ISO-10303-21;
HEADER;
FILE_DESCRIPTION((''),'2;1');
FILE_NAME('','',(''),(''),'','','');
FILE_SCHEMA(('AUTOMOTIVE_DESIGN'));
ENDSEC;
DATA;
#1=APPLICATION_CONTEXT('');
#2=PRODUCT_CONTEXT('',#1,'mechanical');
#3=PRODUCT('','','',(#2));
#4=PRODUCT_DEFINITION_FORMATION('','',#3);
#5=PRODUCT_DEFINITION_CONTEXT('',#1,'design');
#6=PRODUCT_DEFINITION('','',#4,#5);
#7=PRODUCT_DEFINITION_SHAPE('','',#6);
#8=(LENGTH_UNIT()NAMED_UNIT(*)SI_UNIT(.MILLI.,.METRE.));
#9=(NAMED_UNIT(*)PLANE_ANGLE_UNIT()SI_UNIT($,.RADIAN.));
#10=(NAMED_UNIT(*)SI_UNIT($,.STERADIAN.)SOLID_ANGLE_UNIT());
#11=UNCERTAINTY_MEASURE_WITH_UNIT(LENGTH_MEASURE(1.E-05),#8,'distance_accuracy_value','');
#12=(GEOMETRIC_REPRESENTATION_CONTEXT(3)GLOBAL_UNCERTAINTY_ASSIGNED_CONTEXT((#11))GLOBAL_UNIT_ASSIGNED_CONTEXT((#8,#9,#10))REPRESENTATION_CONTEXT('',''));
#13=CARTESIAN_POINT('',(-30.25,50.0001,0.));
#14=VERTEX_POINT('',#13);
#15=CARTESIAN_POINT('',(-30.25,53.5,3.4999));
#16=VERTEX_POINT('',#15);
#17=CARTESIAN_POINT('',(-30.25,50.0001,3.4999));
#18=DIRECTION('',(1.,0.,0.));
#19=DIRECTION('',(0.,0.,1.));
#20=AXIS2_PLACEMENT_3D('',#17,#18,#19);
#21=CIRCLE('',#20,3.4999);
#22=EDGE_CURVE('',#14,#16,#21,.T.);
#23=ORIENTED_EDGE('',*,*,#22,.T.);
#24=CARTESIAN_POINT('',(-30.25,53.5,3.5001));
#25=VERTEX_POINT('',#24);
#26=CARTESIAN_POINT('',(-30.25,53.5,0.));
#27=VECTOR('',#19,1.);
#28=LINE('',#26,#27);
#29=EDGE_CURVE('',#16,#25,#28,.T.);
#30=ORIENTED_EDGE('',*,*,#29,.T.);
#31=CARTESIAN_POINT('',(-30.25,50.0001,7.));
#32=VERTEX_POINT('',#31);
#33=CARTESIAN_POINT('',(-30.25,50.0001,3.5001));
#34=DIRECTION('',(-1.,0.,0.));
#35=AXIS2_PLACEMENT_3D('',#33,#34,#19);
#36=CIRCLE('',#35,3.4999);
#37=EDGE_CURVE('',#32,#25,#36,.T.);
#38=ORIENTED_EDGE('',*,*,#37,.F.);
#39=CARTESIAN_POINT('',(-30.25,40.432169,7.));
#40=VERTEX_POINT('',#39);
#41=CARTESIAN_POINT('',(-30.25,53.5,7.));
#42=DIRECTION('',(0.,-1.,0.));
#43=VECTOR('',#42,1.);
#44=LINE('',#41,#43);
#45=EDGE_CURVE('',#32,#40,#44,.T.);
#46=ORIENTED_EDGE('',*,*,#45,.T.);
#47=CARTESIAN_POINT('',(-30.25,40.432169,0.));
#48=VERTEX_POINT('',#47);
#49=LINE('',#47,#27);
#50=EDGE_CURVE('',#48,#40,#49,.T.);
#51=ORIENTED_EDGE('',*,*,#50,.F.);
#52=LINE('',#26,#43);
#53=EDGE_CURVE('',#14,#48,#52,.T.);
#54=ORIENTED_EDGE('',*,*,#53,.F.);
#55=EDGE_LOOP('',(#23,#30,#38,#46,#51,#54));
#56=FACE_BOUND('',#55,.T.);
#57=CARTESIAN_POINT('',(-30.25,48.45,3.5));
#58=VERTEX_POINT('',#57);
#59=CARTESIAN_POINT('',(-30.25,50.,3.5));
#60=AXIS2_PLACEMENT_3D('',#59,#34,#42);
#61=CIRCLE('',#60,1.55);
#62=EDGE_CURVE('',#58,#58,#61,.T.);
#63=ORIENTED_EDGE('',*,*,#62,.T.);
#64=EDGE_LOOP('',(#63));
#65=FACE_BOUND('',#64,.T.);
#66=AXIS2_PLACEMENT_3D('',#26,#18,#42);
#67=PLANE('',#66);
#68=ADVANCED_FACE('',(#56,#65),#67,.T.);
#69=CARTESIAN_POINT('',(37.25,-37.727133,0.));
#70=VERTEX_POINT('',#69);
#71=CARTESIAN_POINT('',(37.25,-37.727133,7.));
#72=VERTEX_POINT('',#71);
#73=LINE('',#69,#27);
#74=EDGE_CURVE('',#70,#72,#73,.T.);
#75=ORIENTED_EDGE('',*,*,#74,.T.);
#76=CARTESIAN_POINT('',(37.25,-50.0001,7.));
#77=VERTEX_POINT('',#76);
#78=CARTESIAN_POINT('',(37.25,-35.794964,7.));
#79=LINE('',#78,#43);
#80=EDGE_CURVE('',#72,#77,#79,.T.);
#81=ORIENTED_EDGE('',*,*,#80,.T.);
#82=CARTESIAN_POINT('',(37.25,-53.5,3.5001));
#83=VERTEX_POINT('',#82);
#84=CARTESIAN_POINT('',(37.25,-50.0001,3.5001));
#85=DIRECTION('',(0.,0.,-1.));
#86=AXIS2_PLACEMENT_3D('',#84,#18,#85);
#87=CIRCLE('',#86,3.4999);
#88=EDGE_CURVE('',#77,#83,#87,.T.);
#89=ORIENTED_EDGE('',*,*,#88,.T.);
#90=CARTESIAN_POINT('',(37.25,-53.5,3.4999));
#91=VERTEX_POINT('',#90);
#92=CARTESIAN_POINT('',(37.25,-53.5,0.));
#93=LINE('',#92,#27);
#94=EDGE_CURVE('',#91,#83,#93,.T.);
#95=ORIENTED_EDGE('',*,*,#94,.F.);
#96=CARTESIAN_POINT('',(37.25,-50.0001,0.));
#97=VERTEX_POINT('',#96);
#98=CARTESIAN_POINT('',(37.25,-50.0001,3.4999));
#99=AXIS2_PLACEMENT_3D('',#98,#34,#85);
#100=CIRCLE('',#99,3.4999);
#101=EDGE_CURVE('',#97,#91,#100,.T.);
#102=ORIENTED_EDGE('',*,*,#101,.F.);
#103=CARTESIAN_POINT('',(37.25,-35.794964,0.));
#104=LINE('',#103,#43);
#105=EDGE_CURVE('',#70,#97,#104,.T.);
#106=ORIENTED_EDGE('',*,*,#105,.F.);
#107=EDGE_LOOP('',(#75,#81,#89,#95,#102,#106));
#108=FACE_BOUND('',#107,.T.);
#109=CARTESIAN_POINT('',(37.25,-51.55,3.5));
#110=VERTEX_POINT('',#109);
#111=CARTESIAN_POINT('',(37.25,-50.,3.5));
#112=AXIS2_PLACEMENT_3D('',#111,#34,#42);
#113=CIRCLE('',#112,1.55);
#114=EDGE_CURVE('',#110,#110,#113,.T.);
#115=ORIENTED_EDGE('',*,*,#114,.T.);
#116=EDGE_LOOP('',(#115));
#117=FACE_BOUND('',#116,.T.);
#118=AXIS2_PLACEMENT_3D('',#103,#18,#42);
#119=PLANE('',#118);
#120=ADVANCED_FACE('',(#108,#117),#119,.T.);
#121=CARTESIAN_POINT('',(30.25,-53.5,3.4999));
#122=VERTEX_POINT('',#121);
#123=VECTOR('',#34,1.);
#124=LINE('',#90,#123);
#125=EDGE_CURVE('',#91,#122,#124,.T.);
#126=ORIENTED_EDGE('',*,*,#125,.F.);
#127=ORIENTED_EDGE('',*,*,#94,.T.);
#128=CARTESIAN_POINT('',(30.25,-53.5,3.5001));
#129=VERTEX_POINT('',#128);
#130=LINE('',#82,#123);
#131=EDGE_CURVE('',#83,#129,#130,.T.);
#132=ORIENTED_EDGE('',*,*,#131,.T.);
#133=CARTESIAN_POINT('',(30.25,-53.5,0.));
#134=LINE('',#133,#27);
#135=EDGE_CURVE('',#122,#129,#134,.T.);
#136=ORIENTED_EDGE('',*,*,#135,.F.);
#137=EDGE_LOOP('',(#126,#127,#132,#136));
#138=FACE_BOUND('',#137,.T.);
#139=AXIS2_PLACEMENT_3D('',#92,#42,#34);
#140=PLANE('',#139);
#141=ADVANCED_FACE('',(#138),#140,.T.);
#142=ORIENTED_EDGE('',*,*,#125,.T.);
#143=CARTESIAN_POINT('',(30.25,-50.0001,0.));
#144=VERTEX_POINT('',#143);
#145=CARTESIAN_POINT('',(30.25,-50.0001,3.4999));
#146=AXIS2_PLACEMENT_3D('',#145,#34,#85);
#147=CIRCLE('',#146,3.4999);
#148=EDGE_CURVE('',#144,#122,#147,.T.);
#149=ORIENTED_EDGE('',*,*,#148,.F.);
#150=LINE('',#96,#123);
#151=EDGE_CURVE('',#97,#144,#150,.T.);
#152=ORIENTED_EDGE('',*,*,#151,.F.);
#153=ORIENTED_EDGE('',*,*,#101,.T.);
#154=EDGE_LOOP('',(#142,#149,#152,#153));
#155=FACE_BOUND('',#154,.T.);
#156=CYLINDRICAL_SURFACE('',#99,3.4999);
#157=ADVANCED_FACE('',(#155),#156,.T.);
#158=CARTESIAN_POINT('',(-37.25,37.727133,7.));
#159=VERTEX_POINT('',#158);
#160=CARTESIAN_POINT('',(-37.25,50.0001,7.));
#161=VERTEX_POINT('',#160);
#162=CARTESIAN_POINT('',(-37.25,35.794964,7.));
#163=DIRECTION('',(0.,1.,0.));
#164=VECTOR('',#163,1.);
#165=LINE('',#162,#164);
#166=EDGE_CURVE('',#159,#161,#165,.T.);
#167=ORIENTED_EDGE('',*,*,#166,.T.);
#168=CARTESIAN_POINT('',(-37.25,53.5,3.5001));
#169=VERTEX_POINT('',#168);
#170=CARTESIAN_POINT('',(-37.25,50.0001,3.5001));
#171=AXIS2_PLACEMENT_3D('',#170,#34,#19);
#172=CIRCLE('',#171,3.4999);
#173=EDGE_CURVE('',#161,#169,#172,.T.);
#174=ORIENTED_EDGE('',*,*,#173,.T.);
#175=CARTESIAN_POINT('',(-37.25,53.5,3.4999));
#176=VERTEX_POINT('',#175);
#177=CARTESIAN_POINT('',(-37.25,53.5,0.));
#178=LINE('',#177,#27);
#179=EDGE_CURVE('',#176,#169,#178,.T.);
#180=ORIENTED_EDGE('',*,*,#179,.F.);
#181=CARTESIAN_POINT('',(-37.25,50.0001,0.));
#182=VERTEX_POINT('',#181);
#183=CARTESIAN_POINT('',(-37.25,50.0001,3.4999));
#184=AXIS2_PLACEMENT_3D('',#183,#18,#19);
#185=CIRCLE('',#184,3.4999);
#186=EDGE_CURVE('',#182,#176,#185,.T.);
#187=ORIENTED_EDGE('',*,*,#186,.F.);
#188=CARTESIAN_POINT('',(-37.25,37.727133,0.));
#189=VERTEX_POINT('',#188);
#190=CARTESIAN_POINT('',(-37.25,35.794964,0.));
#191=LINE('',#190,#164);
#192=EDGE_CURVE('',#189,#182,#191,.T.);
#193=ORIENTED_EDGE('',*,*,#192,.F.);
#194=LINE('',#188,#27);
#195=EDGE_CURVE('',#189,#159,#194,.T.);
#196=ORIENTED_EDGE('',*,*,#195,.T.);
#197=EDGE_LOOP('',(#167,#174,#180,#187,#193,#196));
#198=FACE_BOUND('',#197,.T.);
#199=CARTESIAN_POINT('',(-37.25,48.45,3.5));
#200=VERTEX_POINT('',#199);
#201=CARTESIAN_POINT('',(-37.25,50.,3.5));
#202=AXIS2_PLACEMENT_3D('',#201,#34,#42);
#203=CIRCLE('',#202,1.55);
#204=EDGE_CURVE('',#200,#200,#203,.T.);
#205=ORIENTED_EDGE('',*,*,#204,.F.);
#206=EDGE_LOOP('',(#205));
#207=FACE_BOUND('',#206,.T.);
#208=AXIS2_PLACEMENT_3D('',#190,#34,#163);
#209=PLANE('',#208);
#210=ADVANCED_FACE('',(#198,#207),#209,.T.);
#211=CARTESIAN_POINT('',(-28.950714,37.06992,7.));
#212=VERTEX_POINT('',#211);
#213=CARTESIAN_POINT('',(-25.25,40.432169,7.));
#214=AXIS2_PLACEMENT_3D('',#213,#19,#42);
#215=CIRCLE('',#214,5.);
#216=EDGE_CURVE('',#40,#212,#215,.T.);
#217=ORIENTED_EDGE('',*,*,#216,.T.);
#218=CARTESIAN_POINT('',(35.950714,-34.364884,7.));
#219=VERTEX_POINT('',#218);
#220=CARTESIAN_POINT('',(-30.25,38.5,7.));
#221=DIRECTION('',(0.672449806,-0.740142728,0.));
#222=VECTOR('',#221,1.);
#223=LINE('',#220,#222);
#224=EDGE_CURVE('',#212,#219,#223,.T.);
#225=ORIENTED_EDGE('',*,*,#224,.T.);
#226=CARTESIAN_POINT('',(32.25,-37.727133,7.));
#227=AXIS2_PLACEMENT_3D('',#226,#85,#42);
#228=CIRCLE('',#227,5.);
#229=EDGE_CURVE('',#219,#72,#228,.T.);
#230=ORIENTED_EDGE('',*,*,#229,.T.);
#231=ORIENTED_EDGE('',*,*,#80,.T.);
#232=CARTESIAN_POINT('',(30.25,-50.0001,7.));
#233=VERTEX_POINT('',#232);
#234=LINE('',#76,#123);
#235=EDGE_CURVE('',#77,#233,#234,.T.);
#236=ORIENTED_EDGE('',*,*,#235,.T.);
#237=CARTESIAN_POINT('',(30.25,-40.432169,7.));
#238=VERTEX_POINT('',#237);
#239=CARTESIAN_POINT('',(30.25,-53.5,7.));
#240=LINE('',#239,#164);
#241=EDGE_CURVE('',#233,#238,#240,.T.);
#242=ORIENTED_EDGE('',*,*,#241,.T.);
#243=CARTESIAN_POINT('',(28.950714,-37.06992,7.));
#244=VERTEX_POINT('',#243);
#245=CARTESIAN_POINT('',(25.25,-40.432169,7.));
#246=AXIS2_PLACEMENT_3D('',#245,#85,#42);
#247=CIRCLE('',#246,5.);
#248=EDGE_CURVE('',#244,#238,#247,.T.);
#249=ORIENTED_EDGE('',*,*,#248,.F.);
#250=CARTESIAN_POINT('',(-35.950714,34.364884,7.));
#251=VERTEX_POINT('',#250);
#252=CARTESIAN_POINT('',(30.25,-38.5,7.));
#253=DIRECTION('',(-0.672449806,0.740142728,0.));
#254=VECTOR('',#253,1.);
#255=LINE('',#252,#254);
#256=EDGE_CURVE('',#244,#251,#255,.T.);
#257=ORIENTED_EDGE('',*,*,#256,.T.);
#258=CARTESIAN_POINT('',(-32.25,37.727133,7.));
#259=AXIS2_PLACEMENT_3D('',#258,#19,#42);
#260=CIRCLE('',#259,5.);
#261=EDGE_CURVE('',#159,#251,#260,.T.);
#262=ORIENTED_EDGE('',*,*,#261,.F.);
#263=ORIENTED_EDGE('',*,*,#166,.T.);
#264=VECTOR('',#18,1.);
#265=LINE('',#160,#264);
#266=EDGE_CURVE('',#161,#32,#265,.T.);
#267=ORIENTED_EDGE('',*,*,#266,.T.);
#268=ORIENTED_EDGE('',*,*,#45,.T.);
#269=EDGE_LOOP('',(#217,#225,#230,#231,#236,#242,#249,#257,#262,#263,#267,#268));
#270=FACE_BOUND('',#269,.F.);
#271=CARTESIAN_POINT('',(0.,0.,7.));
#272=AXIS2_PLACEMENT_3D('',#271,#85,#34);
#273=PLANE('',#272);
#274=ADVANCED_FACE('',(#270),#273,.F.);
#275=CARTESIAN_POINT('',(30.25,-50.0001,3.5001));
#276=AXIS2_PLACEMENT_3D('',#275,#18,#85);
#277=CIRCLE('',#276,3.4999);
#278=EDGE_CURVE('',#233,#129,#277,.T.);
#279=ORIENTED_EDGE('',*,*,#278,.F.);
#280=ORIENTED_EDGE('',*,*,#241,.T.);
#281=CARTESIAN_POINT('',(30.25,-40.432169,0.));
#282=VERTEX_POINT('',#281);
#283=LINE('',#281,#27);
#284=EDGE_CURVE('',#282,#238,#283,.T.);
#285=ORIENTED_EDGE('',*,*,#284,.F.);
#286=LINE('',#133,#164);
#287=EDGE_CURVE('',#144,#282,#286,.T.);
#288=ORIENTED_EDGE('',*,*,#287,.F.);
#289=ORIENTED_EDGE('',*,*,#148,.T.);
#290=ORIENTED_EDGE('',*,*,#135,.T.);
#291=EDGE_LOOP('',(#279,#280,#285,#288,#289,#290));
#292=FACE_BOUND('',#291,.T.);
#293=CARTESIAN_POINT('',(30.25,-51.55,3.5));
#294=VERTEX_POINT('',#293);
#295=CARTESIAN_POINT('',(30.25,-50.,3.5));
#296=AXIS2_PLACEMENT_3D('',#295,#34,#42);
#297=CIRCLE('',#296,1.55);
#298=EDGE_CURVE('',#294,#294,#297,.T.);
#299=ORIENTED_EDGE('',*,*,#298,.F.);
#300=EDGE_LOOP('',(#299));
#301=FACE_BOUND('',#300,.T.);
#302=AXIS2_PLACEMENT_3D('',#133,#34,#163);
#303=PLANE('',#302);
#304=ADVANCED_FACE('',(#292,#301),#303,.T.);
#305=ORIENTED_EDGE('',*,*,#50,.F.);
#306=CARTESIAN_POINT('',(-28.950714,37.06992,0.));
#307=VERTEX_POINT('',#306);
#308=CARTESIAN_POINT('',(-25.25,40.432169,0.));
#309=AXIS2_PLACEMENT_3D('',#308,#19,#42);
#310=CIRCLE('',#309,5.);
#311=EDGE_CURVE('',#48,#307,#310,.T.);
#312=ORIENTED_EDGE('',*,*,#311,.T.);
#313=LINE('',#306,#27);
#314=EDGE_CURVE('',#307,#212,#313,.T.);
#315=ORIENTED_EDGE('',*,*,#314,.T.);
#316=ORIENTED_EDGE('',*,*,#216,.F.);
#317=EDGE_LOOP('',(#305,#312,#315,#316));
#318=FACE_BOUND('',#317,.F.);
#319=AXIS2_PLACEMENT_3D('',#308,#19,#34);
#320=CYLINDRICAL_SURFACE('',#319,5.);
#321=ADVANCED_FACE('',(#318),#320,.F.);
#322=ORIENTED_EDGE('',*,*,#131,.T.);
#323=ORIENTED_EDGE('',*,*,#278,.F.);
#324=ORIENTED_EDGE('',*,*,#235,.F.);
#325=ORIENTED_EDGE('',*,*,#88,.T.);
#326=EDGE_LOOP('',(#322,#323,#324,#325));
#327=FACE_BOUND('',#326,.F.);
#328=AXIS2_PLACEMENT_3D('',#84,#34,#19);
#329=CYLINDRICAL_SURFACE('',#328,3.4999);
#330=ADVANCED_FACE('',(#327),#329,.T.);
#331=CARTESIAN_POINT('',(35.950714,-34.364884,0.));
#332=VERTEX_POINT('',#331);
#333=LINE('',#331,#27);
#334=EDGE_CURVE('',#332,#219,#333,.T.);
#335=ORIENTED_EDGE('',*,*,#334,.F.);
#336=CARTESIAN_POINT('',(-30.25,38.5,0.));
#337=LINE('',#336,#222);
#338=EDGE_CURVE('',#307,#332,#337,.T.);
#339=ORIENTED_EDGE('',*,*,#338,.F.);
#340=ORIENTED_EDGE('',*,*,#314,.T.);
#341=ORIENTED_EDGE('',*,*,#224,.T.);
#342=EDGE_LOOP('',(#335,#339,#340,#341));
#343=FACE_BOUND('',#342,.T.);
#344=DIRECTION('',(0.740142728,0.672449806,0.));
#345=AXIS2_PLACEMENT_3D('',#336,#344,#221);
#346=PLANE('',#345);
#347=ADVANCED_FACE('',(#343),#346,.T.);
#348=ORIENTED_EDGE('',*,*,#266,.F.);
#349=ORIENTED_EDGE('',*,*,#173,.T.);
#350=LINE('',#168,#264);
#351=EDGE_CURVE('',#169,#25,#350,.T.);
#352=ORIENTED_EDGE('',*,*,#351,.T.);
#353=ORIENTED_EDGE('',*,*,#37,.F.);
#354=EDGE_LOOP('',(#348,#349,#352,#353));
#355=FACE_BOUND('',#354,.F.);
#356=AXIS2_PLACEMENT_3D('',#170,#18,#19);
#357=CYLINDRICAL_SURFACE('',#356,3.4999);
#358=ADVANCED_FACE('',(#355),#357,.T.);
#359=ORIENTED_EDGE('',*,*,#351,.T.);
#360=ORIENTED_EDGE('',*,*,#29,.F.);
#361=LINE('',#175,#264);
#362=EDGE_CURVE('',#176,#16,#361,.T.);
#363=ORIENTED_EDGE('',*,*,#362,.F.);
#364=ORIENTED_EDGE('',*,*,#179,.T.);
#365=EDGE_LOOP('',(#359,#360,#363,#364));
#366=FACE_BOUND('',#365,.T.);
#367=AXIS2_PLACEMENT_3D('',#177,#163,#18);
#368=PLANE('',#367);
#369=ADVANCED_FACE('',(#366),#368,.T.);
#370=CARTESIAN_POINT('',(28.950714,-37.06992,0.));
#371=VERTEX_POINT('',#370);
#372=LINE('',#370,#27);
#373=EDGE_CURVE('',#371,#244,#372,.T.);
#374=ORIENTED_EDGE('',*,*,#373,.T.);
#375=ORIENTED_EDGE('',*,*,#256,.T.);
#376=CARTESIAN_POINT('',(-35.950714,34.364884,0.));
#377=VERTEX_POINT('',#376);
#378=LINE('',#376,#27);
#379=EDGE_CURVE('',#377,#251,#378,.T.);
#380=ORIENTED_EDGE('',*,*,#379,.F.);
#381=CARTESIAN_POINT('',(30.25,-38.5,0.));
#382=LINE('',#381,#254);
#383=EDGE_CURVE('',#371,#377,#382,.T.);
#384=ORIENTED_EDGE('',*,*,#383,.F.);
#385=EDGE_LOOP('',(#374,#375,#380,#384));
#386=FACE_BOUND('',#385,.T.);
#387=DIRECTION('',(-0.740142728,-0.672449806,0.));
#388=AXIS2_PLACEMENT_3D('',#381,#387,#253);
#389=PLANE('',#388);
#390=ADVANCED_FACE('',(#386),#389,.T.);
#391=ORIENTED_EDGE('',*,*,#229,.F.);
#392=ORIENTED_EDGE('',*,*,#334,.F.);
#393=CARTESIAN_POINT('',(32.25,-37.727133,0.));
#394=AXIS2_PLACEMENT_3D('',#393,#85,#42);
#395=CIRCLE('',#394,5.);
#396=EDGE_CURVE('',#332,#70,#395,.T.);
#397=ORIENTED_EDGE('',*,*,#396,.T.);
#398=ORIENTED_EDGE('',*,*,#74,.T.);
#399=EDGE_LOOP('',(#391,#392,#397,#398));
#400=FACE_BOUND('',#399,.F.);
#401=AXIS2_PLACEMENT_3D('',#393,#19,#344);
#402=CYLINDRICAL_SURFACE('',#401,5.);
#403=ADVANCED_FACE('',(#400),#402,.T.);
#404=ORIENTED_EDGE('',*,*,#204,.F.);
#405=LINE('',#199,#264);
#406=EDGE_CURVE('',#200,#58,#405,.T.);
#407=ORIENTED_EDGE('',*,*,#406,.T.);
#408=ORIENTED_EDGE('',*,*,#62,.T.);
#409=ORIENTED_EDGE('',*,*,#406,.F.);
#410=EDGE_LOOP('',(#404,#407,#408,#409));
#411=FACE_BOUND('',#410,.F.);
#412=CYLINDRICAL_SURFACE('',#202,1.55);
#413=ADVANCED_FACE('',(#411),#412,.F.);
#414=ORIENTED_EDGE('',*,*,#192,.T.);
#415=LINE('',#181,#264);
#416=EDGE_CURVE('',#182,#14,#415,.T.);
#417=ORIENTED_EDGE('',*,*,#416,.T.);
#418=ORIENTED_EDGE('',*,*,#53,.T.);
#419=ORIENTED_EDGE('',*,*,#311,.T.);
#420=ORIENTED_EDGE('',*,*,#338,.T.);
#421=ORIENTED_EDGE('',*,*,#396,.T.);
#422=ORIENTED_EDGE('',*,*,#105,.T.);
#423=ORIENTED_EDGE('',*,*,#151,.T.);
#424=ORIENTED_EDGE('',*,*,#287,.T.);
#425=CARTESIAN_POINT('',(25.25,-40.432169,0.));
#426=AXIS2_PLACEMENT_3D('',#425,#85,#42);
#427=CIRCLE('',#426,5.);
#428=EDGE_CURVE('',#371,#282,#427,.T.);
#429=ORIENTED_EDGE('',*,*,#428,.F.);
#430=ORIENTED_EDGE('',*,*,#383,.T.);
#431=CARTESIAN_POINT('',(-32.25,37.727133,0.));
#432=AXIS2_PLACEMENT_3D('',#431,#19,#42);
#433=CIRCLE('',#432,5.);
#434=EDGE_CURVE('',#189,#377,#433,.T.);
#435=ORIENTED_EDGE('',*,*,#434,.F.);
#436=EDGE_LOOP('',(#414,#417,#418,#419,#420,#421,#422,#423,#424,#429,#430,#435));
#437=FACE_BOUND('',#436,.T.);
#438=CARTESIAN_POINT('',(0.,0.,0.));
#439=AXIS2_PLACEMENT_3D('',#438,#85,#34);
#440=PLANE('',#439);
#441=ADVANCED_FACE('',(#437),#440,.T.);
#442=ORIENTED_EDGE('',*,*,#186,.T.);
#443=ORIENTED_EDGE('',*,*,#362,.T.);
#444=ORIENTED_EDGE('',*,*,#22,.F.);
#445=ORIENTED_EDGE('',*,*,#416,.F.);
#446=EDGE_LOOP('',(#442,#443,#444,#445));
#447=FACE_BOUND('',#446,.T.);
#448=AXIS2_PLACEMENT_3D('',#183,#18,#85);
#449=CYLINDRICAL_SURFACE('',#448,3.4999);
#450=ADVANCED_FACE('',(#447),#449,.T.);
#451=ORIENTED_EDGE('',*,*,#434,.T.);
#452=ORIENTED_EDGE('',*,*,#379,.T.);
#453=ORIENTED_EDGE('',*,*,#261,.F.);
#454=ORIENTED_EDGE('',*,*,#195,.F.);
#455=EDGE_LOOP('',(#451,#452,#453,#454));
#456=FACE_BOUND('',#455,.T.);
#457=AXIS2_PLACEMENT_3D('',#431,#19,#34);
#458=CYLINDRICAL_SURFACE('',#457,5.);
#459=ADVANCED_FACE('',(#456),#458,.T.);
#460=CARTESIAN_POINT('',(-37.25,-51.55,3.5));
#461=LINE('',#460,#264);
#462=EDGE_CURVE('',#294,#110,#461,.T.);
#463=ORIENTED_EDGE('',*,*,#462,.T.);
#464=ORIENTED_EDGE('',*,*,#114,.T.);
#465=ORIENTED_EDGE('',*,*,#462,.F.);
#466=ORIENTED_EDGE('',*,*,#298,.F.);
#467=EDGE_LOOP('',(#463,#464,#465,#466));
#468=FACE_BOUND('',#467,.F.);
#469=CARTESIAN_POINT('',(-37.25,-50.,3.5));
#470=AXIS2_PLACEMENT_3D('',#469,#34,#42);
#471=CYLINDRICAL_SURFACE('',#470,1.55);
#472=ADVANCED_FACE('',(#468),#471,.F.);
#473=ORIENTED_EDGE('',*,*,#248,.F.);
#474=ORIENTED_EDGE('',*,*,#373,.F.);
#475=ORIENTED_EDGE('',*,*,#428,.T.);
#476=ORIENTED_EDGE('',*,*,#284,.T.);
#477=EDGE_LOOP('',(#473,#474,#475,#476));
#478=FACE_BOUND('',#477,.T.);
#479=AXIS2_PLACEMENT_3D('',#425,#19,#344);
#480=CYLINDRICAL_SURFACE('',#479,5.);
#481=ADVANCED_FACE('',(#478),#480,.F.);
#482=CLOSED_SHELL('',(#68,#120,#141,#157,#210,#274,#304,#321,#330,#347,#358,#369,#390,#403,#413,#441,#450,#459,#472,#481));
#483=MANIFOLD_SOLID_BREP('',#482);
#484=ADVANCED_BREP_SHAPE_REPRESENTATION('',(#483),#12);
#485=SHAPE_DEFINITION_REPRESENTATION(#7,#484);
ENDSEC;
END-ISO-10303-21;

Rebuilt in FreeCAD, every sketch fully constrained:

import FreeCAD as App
import Part
import Sketcher
from FreeCAD import Vector
Q = App.Units.Quantity


def edges_at(feature, points):
    """Names of the edges that pass closest to the given points."""
    edges = feature.Shape.Edges
    near = lambda p: min(range(len(edges)), key=lambda i: edges[i].distToShape(Part.Vertex(*p))[0])
    return sorted({f"Edge{near(p) + 1}" for p in points})


def add_polygon(sketch, points):
    """Adds a closed chain of lines whose ends are joined by coincident constraints."""
    first, n = sketch.GeometryCount, len(points)
    for a, b in zip(points, points[1:] + points[:1]):
        sketch.addGeometry(Part.LineSegment(App.Vector(*a, 0), App.Vector(*b, 0)), False)
    for i in range(n):
        sketch.addConstraint(Sketcher.Constraint("Coincident", first + i, 2, first + (i + 1) % n, 1))

doc = App.newDocument("Part")
body = doc.addObject("PartDesign::Body", "Body")

sketch1 = body.newObject("Sketcher::SketchObject", "Sketch")
sketch1.AttachmentSupport = (doc.getObject("XY_Plane"), [""])
sketch1.MapMode = "FlatFace"
add_polygon(sketch1, [(-37, 54), (-37, 36), (30, -38), (30, -54), (37, -54), (37, -36), (-30, 38), (-30, 54)])
sketch1.addConstraint(Sketcher.Constraint("Vertical", 0))
sketch1.addConstraint(Sketcher.Constraint("Vertical", 2))
sketch1.addConstraint(Sketcher.Constraint("Horizontal", 3))
sketch1.addConstraint(Sketcher.Constraint("Vertical", 4))
sketch1.addConstraint(Sketcher.Constraint("Vertical", 6))
sketch1.addConstraint(Sketcher.Constraint("Horizontal", 7))
sketch1.addConstraint(Sketcher.Constraint("Symmetric", 0, 2, 4, 2, -1, 1))
sketch1.addConstraint(Sketcher.Constraint("Symmetric", 1, 2, 5, 2, -1, 1))
sketch1.addConstraint(Sketcher.Constraint("Equal", 0, 4))
sketch1.addConstraint(Sketcher.Constraint("DistanceX", 3, 1, 3, 2, Q("7 mm")))
sketch1.addConstraint(Sketcher.Constraint("DistanceY", 2, 2, 2, 1, Q("15 mm")))
sketch1.addConstraint(Sketcher.Constraint("DistanceY", 1, 2, 5, 2, Q("77 mm")))
sketch1.addConstraint(Sketcher.Constraint("DistanceX", 0, 2, 1, 2, Q("67.5 mm")))
sketch1.addConstraint(Sketcher.Constraint("Distance", 1, Q("100.379239 mm")))
pad1 = body.newObject("PartDesign::Pad", "Pad")
pad1.Profile = sketch1
pad1.Length = 7

sketch2 = body.newObject("Sketcher::SketchObject", "Sketch001")
sketch2.AttachmentSupport = (doc.getObject("YZ_Plane"), [""])
sketch2.MapMode = "FlatFace"
sketch2.AttachmentOffset = App.Placement(Vector(0, 0, -37.25), App.Rotation())
sketch2.addGeometry(Part.Circle(Vector(50, 3.5, 0), Vector(0, 0, 1), 1.6), False)
sketch2.addGeometry(Part.Circle(Vector(-50, 3.5, 0), Vector(0, 0, 1), 1.6), False)
sketch2.addConstraint(Sketcher.Constraint("Equal", 0, 1))
sketch2.addConstraint(Sketcher.Constraint("Symmetric", 0, 3, 1, 3, -2))
sketch2.addConstraint(Sketcher.Constraint("Diameter", 0, Q("3.1 mm")))
sketch2.addConstraint(Sketcher.Constraint("DistanceX", -1, 1, 0, 3, Q("50 mm")))
sketch2.addConstraint(Sketcher.Constraint("DistanceY", -1, 1, 0, 3, Q("3.5 mm")))
pocket1 = body.newObject("PartDesign::Pocket", "Pocket")
pocket1.Profile = sketch2
pocket1.Type = "ThroughAll"
pocket1.Reversed = True
doc.recompute()

fillet = body.newObject("PartDesign::Fillet", "Fillet")
fillet.Base = (pocket1, edges_at(pocket1, [
    (-33.75, 53.5, 7),
    (-33.75, 53.5, 0),
    (33.75, -53.5, 0),
    (33.75, -53.5, 7),
]))
fillet.Radius = 3.4999
doc.recompute()

fillet2 = body.newObject("PartDesign::Fillet", "Fillet001")
fillet2.Base = (fillet, edges_at(fillet, [
    (37.25, -35.795, 3.5),
    (-30.25, 38.5, 3.5),
    (30.25, -38.5, 3.5),
    (-37.25, 35.795, 3.5),
]))
fillet2.Radius = 5

doc.recompute()
